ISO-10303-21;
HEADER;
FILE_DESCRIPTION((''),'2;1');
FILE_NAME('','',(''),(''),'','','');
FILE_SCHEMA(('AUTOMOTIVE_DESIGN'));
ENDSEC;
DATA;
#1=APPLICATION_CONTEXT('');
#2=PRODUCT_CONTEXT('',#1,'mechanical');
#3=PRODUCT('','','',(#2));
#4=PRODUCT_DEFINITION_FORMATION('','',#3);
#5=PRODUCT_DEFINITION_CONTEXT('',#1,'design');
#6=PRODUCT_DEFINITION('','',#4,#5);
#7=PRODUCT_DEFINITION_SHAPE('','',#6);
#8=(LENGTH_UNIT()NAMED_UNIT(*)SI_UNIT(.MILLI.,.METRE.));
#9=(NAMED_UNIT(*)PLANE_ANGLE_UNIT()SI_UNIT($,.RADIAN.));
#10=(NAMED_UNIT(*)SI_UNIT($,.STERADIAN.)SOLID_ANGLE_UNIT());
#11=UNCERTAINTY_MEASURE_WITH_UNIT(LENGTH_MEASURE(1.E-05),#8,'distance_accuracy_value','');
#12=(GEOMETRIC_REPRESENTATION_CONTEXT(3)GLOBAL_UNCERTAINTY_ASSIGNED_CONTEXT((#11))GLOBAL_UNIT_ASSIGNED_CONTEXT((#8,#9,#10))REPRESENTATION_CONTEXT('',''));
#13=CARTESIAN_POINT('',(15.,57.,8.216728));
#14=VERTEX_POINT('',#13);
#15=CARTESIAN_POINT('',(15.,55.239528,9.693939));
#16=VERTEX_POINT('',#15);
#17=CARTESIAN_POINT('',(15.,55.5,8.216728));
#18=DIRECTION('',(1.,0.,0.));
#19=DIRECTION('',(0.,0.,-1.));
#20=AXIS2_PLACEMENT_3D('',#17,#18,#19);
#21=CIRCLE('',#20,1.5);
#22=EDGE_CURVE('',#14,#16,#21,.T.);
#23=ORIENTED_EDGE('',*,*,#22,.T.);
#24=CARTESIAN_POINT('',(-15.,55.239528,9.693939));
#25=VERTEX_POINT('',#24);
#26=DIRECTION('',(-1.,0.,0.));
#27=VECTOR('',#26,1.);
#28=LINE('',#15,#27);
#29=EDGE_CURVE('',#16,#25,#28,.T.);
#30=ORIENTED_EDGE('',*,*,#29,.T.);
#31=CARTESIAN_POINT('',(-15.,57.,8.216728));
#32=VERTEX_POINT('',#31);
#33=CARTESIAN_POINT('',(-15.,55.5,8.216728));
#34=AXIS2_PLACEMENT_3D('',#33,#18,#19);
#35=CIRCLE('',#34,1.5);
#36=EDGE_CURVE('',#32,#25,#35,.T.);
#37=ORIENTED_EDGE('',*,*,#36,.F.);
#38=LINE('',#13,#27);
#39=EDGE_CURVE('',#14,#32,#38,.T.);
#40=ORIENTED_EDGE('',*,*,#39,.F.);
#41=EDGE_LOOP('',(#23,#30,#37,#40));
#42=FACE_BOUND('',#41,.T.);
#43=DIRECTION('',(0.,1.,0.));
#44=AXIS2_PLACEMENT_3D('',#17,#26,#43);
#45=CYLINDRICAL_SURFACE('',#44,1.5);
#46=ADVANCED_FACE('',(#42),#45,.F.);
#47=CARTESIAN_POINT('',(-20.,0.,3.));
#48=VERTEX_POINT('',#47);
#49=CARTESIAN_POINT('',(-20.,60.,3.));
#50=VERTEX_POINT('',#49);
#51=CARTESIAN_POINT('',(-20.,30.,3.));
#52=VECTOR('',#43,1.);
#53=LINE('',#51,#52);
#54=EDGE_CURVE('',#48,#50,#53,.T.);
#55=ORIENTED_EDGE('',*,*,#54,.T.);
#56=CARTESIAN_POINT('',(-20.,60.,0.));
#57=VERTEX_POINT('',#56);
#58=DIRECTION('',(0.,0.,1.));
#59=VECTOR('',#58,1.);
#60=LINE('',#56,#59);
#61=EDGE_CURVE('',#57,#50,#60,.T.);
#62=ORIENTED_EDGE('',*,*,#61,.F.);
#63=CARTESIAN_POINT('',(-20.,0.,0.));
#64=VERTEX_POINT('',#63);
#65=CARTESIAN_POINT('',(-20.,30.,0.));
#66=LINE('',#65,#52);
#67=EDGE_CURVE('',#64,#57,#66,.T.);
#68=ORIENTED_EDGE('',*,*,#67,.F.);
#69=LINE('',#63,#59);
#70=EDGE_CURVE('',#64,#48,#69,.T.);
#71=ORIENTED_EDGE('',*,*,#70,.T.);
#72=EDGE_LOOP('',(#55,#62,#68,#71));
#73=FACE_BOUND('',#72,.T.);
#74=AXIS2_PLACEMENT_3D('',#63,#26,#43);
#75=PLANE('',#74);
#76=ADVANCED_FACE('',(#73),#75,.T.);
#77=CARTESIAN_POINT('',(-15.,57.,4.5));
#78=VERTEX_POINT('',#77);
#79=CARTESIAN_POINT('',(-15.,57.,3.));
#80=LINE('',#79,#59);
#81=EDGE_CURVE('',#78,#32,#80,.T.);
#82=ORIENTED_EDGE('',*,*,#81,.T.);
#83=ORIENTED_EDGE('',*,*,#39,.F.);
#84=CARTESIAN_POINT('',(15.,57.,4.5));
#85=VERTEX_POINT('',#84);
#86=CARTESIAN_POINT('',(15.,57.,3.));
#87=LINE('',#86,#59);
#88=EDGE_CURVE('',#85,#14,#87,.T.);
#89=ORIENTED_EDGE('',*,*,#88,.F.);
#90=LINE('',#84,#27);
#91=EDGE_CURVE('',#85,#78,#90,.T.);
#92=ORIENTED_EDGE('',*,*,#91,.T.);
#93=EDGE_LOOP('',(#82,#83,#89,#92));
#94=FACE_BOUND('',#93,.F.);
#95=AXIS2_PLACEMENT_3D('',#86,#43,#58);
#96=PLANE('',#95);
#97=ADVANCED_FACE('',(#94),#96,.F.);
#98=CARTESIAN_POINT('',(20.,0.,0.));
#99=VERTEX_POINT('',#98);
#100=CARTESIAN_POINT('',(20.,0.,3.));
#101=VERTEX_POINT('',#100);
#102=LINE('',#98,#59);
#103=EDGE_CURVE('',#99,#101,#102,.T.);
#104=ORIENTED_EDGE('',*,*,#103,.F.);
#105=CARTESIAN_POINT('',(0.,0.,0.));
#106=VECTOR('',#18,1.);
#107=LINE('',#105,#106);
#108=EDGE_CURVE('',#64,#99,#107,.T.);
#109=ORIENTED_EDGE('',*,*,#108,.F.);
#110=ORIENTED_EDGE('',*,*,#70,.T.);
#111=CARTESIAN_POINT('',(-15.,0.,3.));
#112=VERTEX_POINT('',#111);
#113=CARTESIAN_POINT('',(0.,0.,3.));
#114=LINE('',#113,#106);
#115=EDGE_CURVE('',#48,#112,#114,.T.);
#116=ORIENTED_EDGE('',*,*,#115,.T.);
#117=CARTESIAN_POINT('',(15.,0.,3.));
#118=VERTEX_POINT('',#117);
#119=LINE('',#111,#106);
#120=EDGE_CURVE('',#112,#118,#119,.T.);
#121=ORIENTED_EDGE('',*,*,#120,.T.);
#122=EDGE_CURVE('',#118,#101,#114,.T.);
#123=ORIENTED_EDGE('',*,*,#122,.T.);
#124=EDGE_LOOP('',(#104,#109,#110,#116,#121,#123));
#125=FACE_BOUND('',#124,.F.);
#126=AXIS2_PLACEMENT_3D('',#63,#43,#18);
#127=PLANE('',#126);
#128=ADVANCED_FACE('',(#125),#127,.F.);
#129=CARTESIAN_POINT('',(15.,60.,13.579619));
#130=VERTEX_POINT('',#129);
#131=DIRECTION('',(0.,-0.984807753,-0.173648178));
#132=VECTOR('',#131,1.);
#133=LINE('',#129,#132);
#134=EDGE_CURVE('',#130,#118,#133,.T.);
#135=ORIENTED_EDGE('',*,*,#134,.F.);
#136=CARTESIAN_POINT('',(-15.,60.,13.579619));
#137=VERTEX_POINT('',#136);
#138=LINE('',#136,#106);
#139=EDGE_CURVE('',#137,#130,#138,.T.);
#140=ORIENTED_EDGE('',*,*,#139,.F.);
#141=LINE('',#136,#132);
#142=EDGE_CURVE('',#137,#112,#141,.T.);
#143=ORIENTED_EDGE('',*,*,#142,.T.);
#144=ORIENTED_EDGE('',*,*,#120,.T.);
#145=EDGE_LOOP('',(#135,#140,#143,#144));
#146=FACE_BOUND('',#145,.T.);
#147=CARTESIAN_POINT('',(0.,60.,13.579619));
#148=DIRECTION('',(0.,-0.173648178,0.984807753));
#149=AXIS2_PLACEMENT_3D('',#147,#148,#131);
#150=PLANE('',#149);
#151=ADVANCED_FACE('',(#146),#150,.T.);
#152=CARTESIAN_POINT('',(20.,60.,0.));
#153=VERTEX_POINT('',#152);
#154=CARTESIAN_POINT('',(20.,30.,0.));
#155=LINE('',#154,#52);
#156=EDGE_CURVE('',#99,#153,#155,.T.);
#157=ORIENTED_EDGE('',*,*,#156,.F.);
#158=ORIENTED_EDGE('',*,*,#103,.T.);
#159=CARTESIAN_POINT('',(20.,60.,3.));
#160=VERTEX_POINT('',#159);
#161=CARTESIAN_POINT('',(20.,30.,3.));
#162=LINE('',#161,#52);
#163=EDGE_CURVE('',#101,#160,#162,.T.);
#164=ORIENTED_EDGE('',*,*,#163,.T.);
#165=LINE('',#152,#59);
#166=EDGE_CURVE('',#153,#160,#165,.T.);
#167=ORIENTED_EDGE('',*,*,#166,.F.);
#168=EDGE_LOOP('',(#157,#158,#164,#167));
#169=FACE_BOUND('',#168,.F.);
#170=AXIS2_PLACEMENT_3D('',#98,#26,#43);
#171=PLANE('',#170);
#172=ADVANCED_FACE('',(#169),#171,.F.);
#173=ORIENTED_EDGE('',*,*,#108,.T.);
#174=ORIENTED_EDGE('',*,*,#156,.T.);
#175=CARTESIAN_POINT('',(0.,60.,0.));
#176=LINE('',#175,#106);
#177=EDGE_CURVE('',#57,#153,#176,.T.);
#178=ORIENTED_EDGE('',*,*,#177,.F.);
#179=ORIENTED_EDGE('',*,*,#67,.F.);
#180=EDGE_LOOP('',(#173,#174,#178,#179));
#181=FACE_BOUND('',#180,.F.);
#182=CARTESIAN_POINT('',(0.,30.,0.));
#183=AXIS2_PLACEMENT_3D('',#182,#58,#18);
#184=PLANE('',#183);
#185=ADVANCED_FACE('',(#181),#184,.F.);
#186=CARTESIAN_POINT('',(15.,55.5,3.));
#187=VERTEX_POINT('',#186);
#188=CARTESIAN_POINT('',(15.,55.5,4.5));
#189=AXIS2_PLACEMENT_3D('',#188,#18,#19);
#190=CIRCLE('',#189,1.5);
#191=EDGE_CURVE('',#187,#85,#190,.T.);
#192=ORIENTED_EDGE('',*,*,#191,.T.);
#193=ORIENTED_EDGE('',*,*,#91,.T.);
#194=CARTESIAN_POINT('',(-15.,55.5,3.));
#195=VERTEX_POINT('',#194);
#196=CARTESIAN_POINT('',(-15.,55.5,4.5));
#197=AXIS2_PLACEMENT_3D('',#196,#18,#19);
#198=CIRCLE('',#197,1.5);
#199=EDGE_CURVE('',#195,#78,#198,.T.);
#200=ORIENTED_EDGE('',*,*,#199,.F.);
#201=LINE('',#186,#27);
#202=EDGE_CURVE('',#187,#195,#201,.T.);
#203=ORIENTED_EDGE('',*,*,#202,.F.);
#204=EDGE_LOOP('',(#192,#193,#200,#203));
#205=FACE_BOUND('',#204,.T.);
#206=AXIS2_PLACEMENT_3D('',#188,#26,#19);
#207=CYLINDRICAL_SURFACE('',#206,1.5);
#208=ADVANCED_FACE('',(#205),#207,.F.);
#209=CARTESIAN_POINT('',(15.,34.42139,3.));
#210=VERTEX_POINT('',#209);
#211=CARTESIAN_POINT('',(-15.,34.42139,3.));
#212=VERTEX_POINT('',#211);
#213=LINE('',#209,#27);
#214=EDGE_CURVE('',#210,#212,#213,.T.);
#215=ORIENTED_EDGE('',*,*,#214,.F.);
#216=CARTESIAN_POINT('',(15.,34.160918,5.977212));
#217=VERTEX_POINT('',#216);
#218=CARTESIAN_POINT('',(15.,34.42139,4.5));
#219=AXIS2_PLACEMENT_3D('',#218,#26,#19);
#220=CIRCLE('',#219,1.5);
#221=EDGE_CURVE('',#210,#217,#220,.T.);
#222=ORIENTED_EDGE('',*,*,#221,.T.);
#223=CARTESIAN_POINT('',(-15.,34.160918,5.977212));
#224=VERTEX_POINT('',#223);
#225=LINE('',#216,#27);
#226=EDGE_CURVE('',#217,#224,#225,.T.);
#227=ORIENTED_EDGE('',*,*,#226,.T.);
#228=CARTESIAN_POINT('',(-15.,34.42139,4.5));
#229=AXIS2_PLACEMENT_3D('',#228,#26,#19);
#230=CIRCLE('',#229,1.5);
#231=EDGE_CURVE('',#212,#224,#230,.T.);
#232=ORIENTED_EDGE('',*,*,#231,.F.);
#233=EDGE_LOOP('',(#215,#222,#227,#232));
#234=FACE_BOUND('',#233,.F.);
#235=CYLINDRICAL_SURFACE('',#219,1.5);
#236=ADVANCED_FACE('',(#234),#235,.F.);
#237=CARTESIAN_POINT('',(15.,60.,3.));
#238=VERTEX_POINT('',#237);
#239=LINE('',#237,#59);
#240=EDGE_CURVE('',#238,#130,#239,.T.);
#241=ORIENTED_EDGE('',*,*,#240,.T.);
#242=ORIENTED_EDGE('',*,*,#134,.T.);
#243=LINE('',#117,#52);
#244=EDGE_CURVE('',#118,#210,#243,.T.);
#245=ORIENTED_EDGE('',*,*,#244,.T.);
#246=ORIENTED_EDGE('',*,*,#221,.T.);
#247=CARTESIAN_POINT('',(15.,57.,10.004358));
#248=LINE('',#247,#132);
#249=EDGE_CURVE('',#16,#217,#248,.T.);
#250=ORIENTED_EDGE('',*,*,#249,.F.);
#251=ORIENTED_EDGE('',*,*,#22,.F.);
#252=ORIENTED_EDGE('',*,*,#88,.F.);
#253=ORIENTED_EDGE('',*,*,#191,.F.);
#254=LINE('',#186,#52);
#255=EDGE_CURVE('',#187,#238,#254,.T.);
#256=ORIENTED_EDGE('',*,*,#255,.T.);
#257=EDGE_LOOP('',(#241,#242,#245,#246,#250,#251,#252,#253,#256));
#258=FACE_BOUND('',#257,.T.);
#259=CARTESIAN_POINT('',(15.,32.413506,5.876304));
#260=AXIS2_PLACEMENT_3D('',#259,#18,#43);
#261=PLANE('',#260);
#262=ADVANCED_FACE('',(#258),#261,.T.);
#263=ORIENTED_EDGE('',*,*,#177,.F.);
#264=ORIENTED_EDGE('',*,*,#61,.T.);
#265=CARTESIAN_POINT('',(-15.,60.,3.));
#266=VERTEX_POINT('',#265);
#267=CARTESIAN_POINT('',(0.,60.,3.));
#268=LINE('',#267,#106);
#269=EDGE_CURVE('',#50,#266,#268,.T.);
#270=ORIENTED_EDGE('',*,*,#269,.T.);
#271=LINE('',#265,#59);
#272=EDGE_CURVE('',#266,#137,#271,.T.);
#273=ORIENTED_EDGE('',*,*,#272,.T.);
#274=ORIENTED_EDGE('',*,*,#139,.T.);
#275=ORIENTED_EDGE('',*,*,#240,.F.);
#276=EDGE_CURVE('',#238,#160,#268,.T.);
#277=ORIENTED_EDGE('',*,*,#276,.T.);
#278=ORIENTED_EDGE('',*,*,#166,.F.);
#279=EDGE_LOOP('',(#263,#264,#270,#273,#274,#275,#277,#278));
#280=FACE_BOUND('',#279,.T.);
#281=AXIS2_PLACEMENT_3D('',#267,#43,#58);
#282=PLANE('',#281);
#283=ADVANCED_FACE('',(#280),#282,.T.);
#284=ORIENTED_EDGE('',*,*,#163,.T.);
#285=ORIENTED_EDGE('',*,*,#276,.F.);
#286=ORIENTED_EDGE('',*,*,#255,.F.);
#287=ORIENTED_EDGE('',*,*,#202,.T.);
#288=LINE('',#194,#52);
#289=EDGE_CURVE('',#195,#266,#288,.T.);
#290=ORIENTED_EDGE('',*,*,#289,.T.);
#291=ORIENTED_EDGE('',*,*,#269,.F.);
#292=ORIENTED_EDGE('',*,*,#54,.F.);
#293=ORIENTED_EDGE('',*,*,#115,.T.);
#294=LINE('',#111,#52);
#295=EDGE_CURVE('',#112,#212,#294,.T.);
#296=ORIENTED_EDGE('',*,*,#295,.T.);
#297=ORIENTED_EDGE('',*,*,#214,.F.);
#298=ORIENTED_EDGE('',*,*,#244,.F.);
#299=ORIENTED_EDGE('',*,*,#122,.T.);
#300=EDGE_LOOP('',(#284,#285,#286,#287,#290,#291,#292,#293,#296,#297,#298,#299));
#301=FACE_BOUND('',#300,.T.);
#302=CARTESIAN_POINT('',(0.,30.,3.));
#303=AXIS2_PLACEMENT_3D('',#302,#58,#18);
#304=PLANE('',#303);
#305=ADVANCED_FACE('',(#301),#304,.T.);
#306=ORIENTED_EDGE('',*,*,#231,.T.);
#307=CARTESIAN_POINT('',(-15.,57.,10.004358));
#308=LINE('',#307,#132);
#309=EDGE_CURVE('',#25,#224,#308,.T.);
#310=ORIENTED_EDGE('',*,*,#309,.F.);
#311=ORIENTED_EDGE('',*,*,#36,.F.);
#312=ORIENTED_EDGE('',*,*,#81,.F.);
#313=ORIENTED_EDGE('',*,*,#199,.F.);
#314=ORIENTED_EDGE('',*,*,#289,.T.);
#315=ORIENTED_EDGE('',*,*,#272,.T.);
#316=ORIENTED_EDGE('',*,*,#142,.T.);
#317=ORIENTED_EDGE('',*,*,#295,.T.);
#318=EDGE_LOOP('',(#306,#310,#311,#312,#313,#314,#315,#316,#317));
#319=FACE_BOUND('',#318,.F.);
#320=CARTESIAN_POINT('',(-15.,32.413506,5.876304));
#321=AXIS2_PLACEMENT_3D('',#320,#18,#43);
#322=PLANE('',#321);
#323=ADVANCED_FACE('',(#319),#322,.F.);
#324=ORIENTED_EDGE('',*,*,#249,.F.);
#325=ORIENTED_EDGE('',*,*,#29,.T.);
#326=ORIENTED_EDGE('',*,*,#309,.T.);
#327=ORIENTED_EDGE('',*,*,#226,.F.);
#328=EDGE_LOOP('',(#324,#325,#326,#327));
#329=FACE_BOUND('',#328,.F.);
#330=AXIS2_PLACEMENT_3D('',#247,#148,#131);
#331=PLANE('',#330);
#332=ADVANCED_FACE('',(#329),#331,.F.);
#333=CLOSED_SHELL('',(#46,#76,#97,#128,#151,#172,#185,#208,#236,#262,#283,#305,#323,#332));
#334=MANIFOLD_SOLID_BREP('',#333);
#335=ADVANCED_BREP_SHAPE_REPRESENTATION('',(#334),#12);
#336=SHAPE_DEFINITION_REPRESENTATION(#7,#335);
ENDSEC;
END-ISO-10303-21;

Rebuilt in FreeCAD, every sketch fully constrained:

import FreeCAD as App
import Part
import Sketcher
from FreeCAD import Vector
Q = App.Units.Quantity


def edges_at(feature, points):
    """Names of the edges that pass closest to the given points."""
    edges = feature.Shape.Edges
    near = lambda p: min(range(len(edges)), key=lambda i: edges[i].distToShape(Part.Vertex(*p))[0])
    return sorted({f"Edge{near(p) + 1}" for p in points})


def add_polygon(sketch, points):
    """Adds a closed chain of lines whose ends are joined by coincident constraints."""
    first, n = sketch.GeometryCount, len(points)
    for a, b in zip(points, points[1:] + points[:1]):
        sketch.addGeometry(Part.LineSegment(App.Vector(*a, 0), App.Vector(*b, 0)), False)
    for i in range(n):
        sketch.addConstraint(Sketcher.Constraint("Coincident", first + i, 2, first + (i + 1) % n, 1))

doc = App.newDocument("Part")
body = doc.addObject("PartDesign::Body", "Body")

# Sketch on XY plane
sketch1 = body.newObject("Sketcher::SketchObject", "Sketch")
sketch1.AttachmentSupport = (doc.getObject("XY_Plane"), [""])
sketch1.MapMode = "FlatFace"
add_polygon(sketch1, [(-20, 60), (-20, 0), (20, 0), (20, 60)])  # lines 0-3
sketch1.addConstraint([
    Sketcher.Constraint("Vertical", 0),
    Sketcher.Constraint("Horizontal", 1),
    Sketcher.Constraint("Vertical", 2),
    Sketcher.Constraint("Horizontal", 3),
    Sketcher.Constraint("Symmetric", 0, 2, 1, 2, -1, 1),
    Sketcher.Constraint("DistanceX", 1, 1, 1, 2, Q("40 mm")),
    Sketcher.Constraint("DistanceY", 0, 2, 0, 1, Q("60 mm")),
])
pad1 = body.newObject("PartDesign::Pad", "Pad")
pad1.Profile = sketch1
pad1.Length = 3

# Sketch on YZ plane
sketch2 = body.newObject("Sketcher::SketchObject", "Sketch001")
sketch2.AttachmentSupport = (doc.getObject("YZ_Plane"), [""])
sketch2.MapMode = "FlatFace"
add_polygon(sketch2, [(60, 3), (60, 14), (0, 3)])  # lines 0-2
sketch2.addConstraint([
    Sketcher.Constraint("Vertical", 0),
    Sketcher.Constraint("Horizontal", 2),
    Sketcher.Constraint("PointOnObject", 1, 2, -2),
    Sketcher.Constraint("DistanceX", 2, 1, 2, 2, Q("60 mm")),
    Sketcher.Constraint("Angle", 1, Q("-170 deg")),
    Sketcher.Constraint("DistanceY", -1, 1, 1, 2, Q("3 mm")),
])
pad2 = body.newObject("PartDesign::Pad", "Pad001")
pad2.Profile = sketch2
pad2.Type = "TwoLengths"
pad2.Length = 15
pad2.Length2 = 15

# Sketch on YZ plane
sketch3 = body.newObject("Sketcher::SketchObject", "Sketch002")
sketch3.AttachmentSupport = (doc.getObject("YZ_Plane"), [""])
sketch3.MapMode = "FlatFace"
sketch3.AttachmentOffset = App.Placement(Vector(0, 0, 15), App.Rotation())
add_polygon(sketch3, [(17, 3), (57, 3), (57, 10)])  # lines 0-2
sketch3.addConstraint([
    Sketcher.Constraint("Horizontal", 0),
    Sketcher.Constraint("Vertical", 1),
    Sketcher.Constraint("Angle", 2, Q("-170 deg")),
    Sketcher.Constraint("DistanceX", -1, 1, 0, 2, Q("57 mm")),
    Sketcher.Constraint("DistanceY", -1, 1, 0, 2, Q("3 mm")),
    Sketcher.Constraint("DistanceX", 0, 1, 0, 2, Q("39.723689 mm")),
])
pocket1 = body.newObject("PartDesign::Pocket", "Pocket")
pocket1.Profile = sketch3
pocket1.Type = "ThroughAll"
doc.recompute()

fillet = body.newObject("PartDesign::Fillet", "Fillet")
fillet.Base = (pocket1, edges_at(pocket1, [(0, 57, 3), (0, 57, 10.004), (0, 17.276, 3)]))
fillet.Radius = 1.5

doc.recompute()
